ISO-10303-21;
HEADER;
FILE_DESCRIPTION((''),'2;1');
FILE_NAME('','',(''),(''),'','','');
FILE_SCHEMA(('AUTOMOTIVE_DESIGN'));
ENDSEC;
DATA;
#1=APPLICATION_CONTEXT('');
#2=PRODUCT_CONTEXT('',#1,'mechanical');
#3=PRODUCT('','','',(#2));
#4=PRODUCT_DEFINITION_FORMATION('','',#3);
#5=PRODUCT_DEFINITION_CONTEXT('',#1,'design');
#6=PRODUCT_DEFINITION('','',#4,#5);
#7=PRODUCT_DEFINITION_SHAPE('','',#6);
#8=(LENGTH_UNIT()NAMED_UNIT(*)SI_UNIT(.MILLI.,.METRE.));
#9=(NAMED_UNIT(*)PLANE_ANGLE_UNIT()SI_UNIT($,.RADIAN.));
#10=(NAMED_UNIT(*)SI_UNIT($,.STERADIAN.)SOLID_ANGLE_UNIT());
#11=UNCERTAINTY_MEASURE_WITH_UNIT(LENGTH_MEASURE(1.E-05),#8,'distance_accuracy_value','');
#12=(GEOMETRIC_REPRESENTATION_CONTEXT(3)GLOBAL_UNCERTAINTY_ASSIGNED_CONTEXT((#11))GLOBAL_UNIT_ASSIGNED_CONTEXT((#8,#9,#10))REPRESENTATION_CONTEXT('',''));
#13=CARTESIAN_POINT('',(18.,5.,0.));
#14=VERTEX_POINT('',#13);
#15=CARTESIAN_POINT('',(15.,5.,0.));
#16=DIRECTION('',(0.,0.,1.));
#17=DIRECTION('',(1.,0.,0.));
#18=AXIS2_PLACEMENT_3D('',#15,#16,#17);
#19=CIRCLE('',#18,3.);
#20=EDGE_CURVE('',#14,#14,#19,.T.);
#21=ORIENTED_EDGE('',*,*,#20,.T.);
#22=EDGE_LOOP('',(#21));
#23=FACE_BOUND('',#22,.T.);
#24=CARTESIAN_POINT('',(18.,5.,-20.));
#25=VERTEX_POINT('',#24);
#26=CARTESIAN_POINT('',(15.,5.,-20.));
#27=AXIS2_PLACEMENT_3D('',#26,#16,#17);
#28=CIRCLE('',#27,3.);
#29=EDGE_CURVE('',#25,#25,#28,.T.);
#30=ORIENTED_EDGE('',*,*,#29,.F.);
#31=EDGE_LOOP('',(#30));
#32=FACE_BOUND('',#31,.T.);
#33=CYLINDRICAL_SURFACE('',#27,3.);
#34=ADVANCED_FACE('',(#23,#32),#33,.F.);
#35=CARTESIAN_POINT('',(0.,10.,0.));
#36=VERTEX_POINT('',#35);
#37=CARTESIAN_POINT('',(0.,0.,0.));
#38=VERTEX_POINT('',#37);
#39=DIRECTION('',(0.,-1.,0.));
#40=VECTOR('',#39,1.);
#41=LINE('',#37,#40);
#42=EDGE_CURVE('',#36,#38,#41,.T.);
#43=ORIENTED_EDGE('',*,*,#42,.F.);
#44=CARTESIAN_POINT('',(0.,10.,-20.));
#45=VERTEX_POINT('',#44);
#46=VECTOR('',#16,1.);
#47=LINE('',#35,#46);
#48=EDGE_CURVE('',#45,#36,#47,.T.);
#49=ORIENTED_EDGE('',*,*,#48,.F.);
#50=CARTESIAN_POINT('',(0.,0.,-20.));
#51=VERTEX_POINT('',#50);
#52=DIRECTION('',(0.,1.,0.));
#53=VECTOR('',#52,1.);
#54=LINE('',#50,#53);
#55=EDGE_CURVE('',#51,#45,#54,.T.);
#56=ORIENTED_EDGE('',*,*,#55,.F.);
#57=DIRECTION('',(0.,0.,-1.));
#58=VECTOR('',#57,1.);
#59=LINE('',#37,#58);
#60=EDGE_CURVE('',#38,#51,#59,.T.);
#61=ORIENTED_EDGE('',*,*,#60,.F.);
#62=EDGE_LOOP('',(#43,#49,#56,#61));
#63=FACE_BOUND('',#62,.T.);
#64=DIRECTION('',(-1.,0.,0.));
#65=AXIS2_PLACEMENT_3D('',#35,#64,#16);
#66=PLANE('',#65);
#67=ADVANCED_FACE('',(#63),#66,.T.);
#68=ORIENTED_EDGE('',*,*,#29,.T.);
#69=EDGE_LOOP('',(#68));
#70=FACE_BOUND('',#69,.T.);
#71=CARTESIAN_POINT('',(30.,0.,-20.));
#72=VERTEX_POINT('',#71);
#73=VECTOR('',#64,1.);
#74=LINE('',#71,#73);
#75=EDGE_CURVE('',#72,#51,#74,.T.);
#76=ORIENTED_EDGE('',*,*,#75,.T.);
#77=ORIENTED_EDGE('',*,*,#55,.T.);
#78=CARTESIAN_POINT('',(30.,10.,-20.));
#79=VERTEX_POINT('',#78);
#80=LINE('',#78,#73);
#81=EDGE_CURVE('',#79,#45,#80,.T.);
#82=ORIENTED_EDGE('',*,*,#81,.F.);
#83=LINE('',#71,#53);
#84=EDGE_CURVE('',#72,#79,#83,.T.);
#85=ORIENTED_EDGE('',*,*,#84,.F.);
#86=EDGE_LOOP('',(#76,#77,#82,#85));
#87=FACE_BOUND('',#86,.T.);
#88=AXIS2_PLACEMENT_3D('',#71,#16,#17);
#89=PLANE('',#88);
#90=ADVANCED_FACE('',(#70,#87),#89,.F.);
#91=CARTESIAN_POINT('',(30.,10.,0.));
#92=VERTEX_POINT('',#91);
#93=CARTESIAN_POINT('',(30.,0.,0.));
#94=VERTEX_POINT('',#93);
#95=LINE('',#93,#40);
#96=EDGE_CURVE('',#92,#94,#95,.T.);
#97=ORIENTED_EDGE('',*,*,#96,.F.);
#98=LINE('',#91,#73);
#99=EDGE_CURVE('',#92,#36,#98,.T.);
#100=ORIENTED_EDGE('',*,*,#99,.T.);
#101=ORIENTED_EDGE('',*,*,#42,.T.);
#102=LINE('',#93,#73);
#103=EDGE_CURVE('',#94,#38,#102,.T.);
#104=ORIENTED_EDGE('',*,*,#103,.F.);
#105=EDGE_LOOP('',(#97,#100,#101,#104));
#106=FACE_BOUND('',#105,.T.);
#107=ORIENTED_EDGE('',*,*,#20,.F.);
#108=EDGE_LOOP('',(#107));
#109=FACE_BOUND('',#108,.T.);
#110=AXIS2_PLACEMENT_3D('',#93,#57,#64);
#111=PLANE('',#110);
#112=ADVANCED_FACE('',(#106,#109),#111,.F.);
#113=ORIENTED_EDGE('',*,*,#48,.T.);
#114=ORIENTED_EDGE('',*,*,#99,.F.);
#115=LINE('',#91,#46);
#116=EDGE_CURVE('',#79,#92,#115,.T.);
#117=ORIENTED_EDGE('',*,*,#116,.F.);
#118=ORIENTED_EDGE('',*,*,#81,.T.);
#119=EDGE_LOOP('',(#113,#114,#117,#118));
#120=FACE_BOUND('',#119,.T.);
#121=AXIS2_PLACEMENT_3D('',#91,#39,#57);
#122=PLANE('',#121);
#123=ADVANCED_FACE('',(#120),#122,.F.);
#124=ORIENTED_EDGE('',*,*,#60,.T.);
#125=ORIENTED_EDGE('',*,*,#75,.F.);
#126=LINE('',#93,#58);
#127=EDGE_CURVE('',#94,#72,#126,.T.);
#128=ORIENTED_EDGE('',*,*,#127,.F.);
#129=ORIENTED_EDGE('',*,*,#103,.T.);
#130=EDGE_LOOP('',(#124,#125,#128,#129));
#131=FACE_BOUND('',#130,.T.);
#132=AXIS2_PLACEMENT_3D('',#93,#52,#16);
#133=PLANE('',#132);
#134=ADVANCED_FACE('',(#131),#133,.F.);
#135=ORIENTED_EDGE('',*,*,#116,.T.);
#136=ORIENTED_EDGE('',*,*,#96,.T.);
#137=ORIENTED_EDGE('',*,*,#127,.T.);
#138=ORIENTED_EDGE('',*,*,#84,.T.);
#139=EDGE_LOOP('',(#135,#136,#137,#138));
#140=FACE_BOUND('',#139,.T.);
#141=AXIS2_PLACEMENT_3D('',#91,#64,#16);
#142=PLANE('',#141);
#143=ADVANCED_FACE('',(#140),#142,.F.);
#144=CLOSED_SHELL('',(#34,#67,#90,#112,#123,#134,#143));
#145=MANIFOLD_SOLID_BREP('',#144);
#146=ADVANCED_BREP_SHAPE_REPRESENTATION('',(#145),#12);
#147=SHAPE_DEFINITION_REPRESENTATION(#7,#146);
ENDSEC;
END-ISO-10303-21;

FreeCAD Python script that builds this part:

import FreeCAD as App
import Part
import Sketcher
from FreeCAD import Vector
Q = App.Units.Quantity

doc = App.newDocument("Part")
body = doc.addObject("PartDesign::Body", "Body")

sketch1 = body.newObject("Sketcher::SketchObject", "Sketch")
sketch1.AttachmentSupport = (doc.getObject("YZ_Plane"), [""])
sketch1.MapMode = "FlatFace"
sketch1.addGeometry([
    Part.LineSegment(Vector(10, 0, 0), Vector(0, 0, 0)),
    Part.LineSegment(Vector(0, 0, 0), Vector(0, -20, 0)),
    Part.LineSegment(Vector(0, -20, 0), Vector(10, -20, 0)),
    Part.LineSegment(Vector(10, -20, 0), Vector(10, 0, 0)),
], False)
sketch1.addConstraint([
    Sketcher.Constraint("Coincident", 0, 2, 1, 1),
    Sketcher.Constraint("Coincident", 1, 2, 2, 1),
    Sketcher.Constraint("Coincident", 2, 2, 3, 1),
    Sketcher.Constraint("Coincident", 3, 2, 0, 1),
    Sketcher.Constraint("Horizontal", 0),
    Sketcher.Constraint("Vertical", 1),
    Sketcher.Constraint("Horizontal", 2),
    Sketcher.Constraint("Vertical", 3),
    Sketcher.Constraint("Coincident", 0, 2, -1, 1),
    Sketcher.Constraint("DistanceX", 0, 2, 0, 1, Q("10 mm")),
    Sketcher.Constraint("DistanceY", 1, 2, 1, 1, Q("20 mm")),
])
pad1 = body.newObject("PartDesign::Pad", "Pad")
pad1.Profile = sketch1
pad1.Length = 30

sketch2 = body.newObject("Sketcher::SketchObject", "Sketch001")
sketch2.AttachmentSupport = (doc.getObject("XY_Plane"), [""])
sketch2.MapMode = "FlatFace"
sketch2.addGeometry(Part.Circle(Vector(15, 5, 0), Vector(0, 0, 1), 3), False)
sketch2.addConstraint([
    Sketcher.Constraint("Diameter", 0, Q("6 mm")),
    Sketcher.Constraint("DistanceX", -1, 1, 0, 3, Q("15 mm")),
    Sketcher.Constraint("DistanceY", -1, 1, 0, 3, Q("5 mm")),
])
pocket1 = body.newObject("PartDesign::Pocket", "Pocket")
pocket1.Profile = sketch2
pocket1.Type = "ThroughAll"

doc.recompute()
